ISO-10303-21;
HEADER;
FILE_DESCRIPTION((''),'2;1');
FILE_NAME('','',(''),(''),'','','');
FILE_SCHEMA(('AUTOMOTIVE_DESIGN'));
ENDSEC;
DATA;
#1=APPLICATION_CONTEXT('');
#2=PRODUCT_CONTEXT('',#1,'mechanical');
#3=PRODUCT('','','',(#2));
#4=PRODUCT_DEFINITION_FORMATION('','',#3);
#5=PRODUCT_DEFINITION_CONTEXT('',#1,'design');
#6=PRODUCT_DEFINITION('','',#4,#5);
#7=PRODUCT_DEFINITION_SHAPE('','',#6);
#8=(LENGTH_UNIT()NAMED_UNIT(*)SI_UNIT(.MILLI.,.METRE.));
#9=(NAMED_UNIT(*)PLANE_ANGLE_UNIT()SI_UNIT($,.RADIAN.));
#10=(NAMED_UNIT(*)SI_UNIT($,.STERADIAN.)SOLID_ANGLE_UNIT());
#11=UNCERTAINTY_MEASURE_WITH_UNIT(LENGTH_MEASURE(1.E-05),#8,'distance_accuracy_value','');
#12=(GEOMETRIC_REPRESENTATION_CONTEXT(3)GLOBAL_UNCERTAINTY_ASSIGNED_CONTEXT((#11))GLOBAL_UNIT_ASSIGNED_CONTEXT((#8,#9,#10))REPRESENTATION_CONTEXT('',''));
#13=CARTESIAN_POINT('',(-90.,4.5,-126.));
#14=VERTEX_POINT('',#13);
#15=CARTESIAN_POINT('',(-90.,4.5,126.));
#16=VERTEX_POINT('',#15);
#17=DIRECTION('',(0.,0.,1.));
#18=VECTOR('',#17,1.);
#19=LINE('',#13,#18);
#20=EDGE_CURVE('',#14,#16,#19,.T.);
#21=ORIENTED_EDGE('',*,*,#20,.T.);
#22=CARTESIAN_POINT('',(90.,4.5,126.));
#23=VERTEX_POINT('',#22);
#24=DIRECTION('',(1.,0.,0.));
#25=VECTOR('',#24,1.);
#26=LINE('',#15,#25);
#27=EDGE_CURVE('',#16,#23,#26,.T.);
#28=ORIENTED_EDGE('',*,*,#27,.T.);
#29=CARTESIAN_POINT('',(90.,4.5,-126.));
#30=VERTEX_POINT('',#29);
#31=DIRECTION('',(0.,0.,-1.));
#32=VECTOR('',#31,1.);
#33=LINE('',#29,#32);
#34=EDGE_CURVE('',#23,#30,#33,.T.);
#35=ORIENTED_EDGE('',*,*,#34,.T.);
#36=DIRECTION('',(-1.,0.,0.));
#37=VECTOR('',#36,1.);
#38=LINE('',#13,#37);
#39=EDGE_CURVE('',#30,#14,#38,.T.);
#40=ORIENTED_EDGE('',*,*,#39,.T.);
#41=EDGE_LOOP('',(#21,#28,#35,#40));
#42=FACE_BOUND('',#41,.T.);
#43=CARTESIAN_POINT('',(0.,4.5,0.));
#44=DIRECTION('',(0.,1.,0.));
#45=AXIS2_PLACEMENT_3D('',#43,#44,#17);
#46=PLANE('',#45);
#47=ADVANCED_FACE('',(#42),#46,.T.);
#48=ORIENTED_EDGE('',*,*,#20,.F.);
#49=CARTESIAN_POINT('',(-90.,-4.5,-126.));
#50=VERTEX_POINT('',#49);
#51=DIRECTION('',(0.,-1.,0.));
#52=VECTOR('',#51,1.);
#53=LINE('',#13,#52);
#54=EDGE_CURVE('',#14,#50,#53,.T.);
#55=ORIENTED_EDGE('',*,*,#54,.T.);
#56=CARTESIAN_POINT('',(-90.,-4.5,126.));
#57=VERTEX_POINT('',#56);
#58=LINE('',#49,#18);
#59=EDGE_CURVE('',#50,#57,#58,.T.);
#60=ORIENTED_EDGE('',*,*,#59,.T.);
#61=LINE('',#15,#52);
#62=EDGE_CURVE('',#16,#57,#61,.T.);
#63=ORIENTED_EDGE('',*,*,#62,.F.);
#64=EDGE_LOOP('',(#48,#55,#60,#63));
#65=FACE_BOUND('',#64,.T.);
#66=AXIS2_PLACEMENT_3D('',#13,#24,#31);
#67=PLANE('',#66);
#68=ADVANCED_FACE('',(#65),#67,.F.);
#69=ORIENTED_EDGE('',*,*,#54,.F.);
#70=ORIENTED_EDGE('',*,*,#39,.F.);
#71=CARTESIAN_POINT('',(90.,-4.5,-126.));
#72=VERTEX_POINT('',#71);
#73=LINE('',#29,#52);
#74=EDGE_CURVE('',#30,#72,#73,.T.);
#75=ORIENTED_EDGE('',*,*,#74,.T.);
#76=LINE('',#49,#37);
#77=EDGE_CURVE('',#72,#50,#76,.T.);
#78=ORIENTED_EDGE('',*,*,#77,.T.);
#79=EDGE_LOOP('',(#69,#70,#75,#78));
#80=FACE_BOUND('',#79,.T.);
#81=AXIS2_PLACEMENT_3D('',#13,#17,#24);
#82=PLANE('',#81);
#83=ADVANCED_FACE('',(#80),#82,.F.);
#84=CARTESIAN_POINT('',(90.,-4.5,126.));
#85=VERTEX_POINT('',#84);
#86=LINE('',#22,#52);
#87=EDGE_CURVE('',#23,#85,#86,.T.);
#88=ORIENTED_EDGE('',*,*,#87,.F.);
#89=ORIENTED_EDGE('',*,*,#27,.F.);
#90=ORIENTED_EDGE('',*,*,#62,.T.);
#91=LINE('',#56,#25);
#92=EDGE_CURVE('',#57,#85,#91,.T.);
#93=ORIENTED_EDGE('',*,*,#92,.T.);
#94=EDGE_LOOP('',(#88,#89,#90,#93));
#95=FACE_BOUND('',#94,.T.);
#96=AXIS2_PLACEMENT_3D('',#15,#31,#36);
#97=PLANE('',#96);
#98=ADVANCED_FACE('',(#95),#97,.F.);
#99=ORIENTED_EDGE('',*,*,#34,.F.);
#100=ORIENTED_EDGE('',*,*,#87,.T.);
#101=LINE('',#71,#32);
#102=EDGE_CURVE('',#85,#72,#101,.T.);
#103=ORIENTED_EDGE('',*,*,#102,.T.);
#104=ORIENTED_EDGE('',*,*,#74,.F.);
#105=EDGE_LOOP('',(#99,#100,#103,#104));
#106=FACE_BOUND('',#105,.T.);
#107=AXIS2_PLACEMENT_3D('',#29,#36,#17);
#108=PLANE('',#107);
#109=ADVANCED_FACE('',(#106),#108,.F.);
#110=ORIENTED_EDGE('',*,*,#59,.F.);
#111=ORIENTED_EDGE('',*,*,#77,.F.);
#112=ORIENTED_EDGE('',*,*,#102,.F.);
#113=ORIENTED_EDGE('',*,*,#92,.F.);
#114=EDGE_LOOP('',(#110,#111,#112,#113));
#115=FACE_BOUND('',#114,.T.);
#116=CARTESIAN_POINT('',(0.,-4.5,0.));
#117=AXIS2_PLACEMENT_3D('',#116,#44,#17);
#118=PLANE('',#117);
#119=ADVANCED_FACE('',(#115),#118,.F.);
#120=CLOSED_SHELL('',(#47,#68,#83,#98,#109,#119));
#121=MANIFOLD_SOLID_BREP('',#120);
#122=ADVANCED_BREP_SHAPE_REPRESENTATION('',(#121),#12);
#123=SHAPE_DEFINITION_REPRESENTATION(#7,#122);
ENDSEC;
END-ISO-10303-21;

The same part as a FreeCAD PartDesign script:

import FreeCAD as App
import Part
import Sketcher

V = App.Vector


def add_polygon(sketch, points):
    """Adds a closed chain of lines whose ends are joined by coincident constraints."""
    first, n = sketch.GeometryCount, len(points)
    for a, b in zip(points, points[1:] + points[:1]):
        sketch.addGeometry(Part.LineSegment(App.Vector(*a, 0), App.Vector(*b, 0)), False)
    for i in range(n):
        sketch.addConstraint(Sketcher.Constraint("Coincident", first + i, 2, first + (i + 1) % n, 1))

doc = App.newDocument("Part")
body = doc.addObject("PartDesign::Body", "Body")

# Sketch on XZ plane
sketch1 = doc.addObject("Sketcher::SketchObject", "Sketch")
body.addObject(sketch1)
sketch1.AttachmentSupport = (doc.XZ_Plane, [""])
sketch1.MapMode = "FlatFace"
add_polygon(sketch1, [(-90, -126), (-90, 126), (90, 126), (90, -126)])  # lines 0-3
sketch1.addConstraint(Sketcher.Constraint("Vertical", 0))
sketch1.addConstraint(Sketcher.Constraint("Horizontal", 1))
sketch1.addConstraint(Sketcher.Constraint("Vertical", 2))
sketch1.addConstraint(Sketcher.Constraint("Horizontal", 3))
sketch1.addConstraint(Sketcher.Constraint("Symmetric", 0, 2, 2, 2, -1, 1))
sketch1.addConstraint(Sketcher.Constraint("DistanceX", 1, 1, 1, 2, 180.0))
sketch1.addConstraint(Sketcher.Constraint("DistanceY", 0, 1, 0, 2, 252.0))
pad1 = doc.addObject("PartDesign::Pad", "Pad")
body.addObject(pad1)
pad1.Profile = sketch1
pad1.Length = 9
pad1.Midplane = True

doc.recompute()
